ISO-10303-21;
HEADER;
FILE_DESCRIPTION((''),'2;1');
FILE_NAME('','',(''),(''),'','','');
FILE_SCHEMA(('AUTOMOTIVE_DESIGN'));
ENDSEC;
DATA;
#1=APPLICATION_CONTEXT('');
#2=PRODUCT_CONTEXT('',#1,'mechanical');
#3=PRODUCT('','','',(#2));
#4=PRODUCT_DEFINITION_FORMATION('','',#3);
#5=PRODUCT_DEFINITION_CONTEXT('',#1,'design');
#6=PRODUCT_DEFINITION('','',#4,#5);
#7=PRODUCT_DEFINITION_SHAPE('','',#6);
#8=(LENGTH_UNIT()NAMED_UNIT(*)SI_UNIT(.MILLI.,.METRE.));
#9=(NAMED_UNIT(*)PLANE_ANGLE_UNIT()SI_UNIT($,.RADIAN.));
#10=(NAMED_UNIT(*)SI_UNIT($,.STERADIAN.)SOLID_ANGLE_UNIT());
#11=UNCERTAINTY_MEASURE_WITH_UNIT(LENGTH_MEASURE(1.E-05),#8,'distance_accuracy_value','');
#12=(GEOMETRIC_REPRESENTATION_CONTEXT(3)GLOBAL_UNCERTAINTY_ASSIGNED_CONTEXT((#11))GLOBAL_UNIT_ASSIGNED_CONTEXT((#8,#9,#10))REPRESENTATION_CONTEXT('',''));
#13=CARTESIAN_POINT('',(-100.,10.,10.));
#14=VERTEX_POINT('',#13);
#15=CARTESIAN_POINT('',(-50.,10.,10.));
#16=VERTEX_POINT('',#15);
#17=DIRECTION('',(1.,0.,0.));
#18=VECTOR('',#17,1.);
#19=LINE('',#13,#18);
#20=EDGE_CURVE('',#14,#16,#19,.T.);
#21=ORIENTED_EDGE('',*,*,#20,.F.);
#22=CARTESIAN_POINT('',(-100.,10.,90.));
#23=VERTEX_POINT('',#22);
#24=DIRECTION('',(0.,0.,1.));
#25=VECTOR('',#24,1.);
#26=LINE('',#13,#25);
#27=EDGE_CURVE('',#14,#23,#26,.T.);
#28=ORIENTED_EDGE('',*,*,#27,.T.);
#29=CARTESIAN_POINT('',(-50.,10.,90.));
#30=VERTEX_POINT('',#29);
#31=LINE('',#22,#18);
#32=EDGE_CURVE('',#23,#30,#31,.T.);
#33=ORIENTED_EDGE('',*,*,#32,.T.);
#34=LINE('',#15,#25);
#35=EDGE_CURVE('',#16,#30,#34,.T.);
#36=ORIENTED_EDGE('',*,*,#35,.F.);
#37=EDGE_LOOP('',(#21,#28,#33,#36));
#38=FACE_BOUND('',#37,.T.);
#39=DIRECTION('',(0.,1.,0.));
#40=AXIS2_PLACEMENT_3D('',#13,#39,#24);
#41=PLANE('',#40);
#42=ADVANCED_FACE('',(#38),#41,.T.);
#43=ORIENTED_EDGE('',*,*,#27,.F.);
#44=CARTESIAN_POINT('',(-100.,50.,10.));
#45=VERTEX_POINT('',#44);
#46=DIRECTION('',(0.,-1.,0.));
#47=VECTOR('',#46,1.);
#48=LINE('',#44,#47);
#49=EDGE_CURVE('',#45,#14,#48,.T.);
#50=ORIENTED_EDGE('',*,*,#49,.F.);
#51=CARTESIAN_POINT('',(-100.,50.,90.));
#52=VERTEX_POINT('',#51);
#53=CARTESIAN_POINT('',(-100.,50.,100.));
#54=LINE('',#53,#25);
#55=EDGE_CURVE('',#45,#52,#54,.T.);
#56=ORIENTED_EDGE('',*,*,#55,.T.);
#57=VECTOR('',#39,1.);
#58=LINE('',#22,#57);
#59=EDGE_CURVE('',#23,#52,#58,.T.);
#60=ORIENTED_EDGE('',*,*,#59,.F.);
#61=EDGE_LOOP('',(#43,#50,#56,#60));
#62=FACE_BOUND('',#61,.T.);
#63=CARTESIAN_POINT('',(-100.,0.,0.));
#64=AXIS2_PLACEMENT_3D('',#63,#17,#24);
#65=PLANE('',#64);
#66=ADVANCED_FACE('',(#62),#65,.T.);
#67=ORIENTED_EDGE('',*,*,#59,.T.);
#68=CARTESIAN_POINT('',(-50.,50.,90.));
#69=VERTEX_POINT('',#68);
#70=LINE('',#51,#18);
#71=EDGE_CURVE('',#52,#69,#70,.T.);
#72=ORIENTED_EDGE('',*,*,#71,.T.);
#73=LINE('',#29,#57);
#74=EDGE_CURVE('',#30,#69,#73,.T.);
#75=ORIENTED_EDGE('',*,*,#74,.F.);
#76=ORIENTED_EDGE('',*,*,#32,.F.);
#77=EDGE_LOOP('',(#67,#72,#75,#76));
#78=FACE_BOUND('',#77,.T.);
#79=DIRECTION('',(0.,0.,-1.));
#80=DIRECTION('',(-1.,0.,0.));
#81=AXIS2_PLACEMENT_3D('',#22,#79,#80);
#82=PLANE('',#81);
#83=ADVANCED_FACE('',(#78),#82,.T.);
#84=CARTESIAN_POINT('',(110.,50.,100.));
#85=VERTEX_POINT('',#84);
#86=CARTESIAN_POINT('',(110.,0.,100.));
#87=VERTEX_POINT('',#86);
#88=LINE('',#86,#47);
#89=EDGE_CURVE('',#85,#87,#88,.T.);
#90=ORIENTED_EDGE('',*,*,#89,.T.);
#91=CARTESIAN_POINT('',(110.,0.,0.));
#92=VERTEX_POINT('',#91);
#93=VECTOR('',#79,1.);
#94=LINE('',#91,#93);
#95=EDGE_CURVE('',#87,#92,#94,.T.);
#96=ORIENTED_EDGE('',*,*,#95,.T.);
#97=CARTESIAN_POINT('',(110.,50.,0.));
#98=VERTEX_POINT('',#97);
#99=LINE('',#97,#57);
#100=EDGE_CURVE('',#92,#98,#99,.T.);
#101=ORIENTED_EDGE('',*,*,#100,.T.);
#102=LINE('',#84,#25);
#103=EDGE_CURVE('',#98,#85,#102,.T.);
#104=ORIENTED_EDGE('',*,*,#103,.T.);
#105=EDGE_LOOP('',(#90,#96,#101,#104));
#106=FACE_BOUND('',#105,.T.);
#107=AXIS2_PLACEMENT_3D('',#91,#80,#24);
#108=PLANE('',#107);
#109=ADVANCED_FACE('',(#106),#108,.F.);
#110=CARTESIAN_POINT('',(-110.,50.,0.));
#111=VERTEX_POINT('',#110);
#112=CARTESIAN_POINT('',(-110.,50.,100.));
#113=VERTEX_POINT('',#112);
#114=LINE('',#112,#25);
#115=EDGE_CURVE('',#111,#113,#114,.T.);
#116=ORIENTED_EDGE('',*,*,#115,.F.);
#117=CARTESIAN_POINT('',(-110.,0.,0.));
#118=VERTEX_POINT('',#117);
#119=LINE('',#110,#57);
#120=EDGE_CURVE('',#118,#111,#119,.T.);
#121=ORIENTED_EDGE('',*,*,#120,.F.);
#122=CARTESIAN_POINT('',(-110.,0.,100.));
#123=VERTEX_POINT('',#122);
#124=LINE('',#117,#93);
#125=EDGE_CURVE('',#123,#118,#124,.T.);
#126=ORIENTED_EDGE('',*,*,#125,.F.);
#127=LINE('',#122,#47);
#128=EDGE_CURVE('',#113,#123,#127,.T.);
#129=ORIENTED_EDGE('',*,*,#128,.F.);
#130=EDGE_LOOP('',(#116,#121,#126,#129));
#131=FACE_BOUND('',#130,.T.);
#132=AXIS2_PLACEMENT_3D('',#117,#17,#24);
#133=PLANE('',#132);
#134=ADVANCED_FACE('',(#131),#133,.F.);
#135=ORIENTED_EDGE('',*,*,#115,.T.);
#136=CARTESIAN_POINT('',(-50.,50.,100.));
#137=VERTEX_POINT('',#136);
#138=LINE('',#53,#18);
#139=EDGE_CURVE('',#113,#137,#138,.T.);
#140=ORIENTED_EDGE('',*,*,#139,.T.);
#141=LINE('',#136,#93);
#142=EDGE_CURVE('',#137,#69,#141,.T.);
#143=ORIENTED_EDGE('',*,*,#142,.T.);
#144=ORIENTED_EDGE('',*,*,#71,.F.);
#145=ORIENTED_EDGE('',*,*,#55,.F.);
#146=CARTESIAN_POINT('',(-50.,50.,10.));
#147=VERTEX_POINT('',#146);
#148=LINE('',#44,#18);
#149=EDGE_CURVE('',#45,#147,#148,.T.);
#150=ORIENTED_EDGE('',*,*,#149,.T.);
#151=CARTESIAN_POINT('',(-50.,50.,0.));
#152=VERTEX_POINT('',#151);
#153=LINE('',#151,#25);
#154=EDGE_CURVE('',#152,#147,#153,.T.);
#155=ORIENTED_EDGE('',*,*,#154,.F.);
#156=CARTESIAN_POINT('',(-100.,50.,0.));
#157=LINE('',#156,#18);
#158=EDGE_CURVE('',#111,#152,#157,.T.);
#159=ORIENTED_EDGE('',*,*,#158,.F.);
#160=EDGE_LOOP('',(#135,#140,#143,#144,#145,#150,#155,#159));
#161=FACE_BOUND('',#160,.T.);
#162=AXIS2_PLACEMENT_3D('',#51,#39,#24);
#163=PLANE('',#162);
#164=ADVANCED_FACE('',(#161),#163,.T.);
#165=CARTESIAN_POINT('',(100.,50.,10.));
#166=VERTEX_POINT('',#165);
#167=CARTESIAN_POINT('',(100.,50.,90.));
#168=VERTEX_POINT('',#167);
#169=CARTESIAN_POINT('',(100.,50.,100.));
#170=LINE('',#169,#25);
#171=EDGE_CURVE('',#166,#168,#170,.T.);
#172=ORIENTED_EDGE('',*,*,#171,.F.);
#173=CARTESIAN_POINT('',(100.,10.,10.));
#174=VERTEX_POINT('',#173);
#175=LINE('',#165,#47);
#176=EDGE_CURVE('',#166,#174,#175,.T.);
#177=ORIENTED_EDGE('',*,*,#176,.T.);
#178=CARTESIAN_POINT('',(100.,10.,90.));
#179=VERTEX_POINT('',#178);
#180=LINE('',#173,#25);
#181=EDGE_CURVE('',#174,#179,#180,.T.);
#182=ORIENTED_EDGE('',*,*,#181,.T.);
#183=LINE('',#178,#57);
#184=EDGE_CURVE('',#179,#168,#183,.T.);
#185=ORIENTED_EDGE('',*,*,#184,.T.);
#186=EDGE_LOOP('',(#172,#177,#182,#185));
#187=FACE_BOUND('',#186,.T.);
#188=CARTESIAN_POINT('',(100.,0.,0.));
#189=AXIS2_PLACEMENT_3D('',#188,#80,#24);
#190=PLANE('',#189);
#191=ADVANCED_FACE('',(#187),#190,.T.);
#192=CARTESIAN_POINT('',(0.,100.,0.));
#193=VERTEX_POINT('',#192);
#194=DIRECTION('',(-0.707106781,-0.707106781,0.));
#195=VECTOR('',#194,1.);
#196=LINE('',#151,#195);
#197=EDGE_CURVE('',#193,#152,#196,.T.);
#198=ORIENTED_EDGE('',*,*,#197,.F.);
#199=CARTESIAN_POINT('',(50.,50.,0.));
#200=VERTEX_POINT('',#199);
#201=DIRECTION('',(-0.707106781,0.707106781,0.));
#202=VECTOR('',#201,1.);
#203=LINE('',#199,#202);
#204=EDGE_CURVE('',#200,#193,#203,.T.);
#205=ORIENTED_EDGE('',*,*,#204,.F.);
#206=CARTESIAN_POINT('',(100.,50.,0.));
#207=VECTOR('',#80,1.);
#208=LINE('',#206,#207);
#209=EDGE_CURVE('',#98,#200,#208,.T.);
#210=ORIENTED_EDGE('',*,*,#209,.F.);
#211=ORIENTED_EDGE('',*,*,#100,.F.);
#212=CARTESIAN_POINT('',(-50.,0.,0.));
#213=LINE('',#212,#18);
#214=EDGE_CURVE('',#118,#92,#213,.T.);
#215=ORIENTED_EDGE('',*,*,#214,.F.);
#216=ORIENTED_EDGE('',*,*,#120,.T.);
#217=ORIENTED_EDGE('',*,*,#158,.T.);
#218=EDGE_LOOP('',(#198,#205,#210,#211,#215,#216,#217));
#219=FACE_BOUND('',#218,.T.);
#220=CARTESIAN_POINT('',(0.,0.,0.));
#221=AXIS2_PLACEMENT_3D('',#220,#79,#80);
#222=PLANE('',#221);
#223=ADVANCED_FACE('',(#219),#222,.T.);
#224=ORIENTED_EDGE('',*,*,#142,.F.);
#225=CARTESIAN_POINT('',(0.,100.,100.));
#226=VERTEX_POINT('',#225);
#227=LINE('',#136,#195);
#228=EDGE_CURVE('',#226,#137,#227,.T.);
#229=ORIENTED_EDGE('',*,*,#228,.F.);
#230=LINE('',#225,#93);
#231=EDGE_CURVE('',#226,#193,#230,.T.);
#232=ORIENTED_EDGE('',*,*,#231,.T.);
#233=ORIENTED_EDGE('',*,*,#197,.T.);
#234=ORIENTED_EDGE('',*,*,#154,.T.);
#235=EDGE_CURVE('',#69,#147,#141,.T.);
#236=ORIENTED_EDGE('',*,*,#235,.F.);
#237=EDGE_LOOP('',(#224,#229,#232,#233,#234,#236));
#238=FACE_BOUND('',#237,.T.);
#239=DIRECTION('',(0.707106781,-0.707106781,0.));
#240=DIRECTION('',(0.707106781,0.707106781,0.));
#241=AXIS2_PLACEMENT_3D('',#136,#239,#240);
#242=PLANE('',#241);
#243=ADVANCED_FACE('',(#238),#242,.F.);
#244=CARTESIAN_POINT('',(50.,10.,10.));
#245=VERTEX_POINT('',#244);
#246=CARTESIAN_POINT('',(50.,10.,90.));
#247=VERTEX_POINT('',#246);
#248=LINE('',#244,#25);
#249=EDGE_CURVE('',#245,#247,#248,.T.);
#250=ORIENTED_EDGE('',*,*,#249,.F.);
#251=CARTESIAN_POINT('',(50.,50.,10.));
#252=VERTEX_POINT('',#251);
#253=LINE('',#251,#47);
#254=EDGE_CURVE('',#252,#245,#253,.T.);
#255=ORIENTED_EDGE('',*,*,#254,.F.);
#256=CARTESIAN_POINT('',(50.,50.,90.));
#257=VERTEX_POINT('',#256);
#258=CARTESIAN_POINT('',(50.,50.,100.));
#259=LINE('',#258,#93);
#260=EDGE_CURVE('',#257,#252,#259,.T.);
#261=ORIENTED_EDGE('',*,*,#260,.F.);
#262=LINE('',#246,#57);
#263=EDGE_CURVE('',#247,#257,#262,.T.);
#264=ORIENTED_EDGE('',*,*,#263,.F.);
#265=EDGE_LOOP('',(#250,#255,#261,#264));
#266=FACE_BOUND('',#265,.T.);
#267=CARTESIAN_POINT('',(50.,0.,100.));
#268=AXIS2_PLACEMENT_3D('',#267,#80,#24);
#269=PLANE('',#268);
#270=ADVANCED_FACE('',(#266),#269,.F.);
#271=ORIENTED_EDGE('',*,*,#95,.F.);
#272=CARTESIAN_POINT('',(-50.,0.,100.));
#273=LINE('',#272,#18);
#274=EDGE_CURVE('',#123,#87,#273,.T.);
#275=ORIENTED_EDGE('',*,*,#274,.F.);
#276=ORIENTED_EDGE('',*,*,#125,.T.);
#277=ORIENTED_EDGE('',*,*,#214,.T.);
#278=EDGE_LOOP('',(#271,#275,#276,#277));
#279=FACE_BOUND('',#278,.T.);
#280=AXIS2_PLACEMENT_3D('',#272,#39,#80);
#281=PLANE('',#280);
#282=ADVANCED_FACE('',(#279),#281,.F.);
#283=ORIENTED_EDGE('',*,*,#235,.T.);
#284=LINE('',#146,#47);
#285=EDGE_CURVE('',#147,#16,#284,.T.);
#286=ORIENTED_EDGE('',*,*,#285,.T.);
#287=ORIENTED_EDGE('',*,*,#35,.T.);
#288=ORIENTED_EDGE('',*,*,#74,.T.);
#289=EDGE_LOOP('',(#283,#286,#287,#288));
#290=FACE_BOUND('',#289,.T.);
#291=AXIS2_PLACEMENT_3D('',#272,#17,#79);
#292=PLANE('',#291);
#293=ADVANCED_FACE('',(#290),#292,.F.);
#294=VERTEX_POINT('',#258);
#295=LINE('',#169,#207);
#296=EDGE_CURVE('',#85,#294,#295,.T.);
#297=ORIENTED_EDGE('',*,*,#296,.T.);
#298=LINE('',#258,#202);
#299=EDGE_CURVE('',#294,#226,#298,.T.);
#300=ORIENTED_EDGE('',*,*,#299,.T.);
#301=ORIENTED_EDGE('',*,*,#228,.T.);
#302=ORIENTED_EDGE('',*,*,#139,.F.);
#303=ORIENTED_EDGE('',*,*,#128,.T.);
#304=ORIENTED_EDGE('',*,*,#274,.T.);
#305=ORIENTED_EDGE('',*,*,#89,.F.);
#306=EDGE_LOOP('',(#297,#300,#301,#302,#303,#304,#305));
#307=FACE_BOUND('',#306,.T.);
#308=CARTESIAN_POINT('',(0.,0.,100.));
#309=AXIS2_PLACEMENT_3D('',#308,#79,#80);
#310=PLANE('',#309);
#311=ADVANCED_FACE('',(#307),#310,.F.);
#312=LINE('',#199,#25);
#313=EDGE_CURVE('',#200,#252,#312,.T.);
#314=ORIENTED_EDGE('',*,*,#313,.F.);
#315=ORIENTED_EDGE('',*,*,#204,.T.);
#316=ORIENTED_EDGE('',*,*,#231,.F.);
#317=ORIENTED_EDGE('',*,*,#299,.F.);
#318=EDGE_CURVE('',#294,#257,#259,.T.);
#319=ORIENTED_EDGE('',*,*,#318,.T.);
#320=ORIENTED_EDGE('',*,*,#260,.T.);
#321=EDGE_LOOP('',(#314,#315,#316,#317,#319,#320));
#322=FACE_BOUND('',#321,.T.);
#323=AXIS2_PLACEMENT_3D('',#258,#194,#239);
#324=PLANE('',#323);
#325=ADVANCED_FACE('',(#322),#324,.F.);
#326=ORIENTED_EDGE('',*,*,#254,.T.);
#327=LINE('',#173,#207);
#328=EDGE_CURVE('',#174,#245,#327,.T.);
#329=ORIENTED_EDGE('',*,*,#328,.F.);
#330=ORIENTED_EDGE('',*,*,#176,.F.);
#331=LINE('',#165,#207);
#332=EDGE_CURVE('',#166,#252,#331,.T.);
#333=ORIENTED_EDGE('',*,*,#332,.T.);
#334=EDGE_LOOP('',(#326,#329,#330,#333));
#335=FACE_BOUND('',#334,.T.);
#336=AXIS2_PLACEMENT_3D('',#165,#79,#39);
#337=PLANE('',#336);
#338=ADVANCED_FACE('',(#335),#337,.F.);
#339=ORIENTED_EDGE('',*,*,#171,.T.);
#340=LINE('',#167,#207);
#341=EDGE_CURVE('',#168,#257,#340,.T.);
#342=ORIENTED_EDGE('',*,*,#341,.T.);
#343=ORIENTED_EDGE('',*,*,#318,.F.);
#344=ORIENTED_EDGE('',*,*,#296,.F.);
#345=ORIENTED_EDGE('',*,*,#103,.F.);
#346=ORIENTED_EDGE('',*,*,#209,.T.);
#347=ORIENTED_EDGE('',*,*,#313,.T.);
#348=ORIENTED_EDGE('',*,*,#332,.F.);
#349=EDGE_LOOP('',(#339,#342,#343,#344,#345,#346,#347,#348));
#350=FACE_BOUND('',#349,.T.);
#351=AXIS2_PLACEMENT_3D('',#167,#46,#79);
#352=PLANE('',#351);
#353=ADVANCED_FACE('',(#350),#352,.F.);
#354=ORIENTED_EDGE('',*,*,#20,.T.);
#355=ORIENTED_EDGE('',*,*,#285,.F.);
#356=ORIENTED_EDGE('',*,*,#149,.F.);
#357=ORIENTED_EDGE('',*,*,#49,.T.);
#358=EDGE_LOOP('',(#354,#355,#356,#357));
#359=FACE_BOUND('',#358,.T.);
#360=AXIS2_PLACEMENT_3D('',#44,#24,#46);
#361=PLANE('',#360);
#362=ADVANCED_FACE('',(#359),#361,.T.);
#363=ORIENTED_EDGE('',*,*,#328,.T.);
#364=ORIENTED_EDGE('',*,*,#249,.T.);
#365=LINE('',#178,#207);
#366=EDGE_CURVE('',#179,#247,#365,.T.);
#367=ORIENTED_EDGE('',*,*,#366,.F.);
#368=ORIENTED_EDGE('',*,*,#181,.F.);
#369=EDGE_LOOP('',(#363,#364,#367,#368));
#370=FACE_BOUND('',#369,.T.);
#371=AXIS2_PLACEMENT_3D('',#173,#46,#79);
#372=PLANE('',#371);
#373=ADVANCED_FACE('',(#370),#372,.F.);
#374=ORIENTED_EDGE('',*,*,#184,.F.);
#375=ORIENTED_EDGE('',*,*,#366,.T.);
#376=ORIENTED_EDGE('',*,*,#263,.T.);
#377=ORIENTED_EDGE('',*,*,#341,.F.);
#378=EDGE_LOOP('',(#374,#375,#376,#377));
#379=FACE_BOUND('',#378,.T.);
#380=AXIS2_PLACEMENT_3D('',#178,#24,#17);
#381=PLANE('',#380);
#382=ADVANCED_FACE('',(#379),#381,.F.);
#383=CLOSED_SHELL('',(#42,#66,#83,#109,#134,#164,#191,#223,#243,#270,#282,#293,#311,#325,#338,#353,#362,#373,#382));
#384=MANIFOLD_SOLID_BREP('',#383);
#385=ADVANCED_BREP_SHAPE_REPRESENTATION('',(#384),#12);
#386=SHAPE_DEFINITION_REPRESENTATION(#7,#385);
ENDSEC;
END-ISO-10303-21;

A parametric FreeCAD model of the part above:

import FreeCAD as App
import Part
import Sketcher
Q = App.Units.Quantity

doc = App.newDocument("Part")
params = doc.addObject("Spreadsheet::Sheet", "Params")
for row, (alias, value) in enumerate([
    ("sketch1_width", "100 mm"),
    ("sketch1_height", "50 mm"),
    ("pad1_length", "100 mm"),
    ("sketch2_width", "50 mm"),
    ("sketch2_width2", "40 mm"),
    ("sketch2_height", "100 mm"),
    ("sketch2_height2", "10 mm"),
    ("pad2_length", "50 mm"),
    ("sketch3_width", "50 mm"),
    ("sketch3_height", "100 mm"),
    ("pad3_length", "10 mm"),
], start=1):
    params.set(f"A{row}", alias)
    params.set(f"B{row}", "=" + value)
    params.setAlias(f"B{row}", alias)

body = doc.addObject("PartDesign::Body", "Body")

# Sketch on XY plane
sketch1 = body.newObject("Sketcher::SketchObject", "Sketch")
sketch1.AttachmentSupport = (doc.getObject("XY_Plane"), [""])
sketch1.MapMode = "FlatFace"
sketch1.addGeometry([
    Part.LineSegment(App.Vector(-50, 0, 0), App.Vector(50, 0, 0)),  # 0
    Part.LineSegment(App.Vector(50, 0, 0), App.Vector(50, 50, 0)),  # 1
    Part.LineSegment(App.Vector(50, 50, 0), App.Vector(0, 100, 0)),  # 2
    Part.LineSegment(App.Vector(0, 100, 0), App.Vector(-50, 50, 0)),  # 3
    Part.LineSegment(App.Vector(-50, 50, 0), App.Vector(-50, 0, 0)),  # 4
], False)
sketch1.addConstraint([
    Sketcher.Constraint("Coincident", 0, 2, 1, 1),
    Sketcher.Constraint("Coincident", 1, 2, 2, 1),
    Sketcher.Constraint("Coincident", 2, 2, 3, 1),
    Sketcher.Constraint("Coincident", 3, 2, 4, 1),
    Sketcher.Constraint("Coincident", 4, 2, 0, 1),
    Sketcher.Constraint("Horizontal", 0),
    Sketcher.Constraint("Vertical", 1),
    Sketcher.Constraint("Vertical", 4),
    Sketcher.Constraint("Symmetric", 0, 2, 4, 2, -1, 1),
    Sketcher.Constraint("PointOnObject", 2, 2, -2),
    Sketcher.Constraint("Perpendicular", 2, 3),
    Sketcher.Constraint("Horizontal", 1, 2, 3, 2),
    Sketcher.Constraint("DistanceX", 0, 1, 0, 2, Q("100 mm")),
    Sketcher.Constraint("DistanceY", 1, 1, 1, 2, Q("50 mm")),
])
sketch1.setExpression("Constraints[12]", "Params.sketch1_width")
sketch1.setExpression("Constraints[13]", "Params.sketch1_height")
pad1 = body.newObject("PartDesign::Pad", "Pad")
pad1.Profile = sketch1
pad1.setExpression("Length", "Params.pad1_length")

# Sketch on YZ plane
sketch2 = body.newObject("Sketcher::SketchObject", "Sketch001")
sketch2.AttachmentSupport = (doc.getObject("YZ_Plane"), [""])
sketch2.MapMode = "FlatFace"
sketch2.AttachmentOffset = App.Placement(App.Vector(0, 0, 50), App.Rotation())
sketch2.addGeometry([
    Part.LineSegment(App.Vector(50, 100, 0), App.Vector(0, 100, 0)),  # 0
    Part.LineSegment(App.Vector(0, 100, 0), App.Vector(0, 0, 0)),  # 1
    Part.LineSegment(App.Vector(0, 0, 0), App.Vector(50, 0, 0)),  # 2
    Part.LineSegment(App.Vector(50, 0, 0), App.Vector(50, 10, 0)),  # 3
    Part.LineSegment(App.Vector(50, 10, 0), App.Vector(10, 10, 0)),  # 4
    Part.LineSegment(App.Vector(10, 10, 0), App.Vector(10, 90, 0)),  # 5
    Part.LineSegment(App.Vector(10, 90, 0), App.Vector(50, 90, 0)),  # 6
    Part.LineSegment(App.Vector(50, 90, 0), App.Vector(50, 100, 0)),  # 7
], False)
sketch2.addConstraint([
    Sketcher.Constraint("Coincident", 0, 2, 1, 1),
    Sketcher.Constraint("Coincident", 1, 2, 2, 1),
    Sketcher.Constraint("Coincident", 2, 2, 3, 1),
    Sketcher.Constraint("Coincident", 3, 2, 4, 1),
    Sketcher.Constraint("Coincident", 4, 2, 5, 1),
    Sketcher.Constraint("Coincident", 5, 2, 6, 1),
    Sketcher.Constraint("Coincident", 6, 2, 7, 1),
    Sketcher.Constraint("Coincident", 7, 2, 0, 1),
    Sketcher.Constraint("Horizontal", 0),
    Sketcher.Constraint("Vertical", 1),
    Sketcher.Constraint("Horizontal", 2),
    Sketcher.Constraint("Vertical", 3),
    Sketcher.Constraint("Horizontal", 4),
    Sketcher.Constraint("Vertical", 5),
    Sketcher.Constraint("Horizontal", 6),
    Sketcher.Constraint("Vertical", 7),
    Sketcher.Constraint("Coincident", 1, 2, -1, 1),
    Sketcher.Constraint("Vertical", 3, 2, 6, 2),
    Sketcher.Constraint("Equal", 3, 7),
    Sketcher.Constraint("DistanceX", 0, 2, 0, 1, Q("50 mm")),
    Sketcher.Constraint("DistanceX", 4, 2, 4, 1, Q("40 mm")),
    Sketcher.Constraint("DistanceY", 1, 2, 1, 1, Q("100 mm")),
    Sketcher.Constraint("DistanceY", 3, 1, 3, 2, Q("10 mm")),
])
sketch2.setExpression("Constraints[19]", "Params.sketch2_width")
sketch2.setExpression("Constraints[20]", "Params.sketch2_width2")
sketch2.setExpression("Constraints[21]", "Params.sketch2_height")
sketch2.setExpression("Constraints[22]", "Params.sketch2_height2")
pad2 = body.newObject("PartDesign::Pad", "Pad001")
pad2.Profile = sketch2
pad2.setExpression("Length", "Params.pad2_length")

# Sketch on YZ plane
sketch3 = body.newObject("Sketcher::SketchObject", "Sketch002")
sketch3.AttachmentSupport = (doc.getObject("YZ_Plane"), [""])
sketch3.MapMode = "FlatFace"
sketch3.AttachmentOffset = App.Placement(App.Vector(0, 0, 100), App.Rotation())
sketch3.addGeometry([
    Part.LineSegment(App.Vector(50, 100, 0), App.Vector(0, 100, 0)),
    Part.LineSegment(App.Vector(0, 100, 0), App.Vector(0, 0, 0)),
    Part.LineSegment(App.Vector(0, 0, 0), App.Vector(50, 0, 0)),
    Part.LineSegment(App.Vector(50, 0, 0), App.Vector(50, 100, 0)),
], False)
sketch3.addConstraint([
    Sketcher.Constraint("Coincident", 0, 2, 1, 1),
    Sketcher.Constraint("Coincident", 1, 2, 2, 1),
    Sketcher.Constraint("Coincident", 2, 2, 3, 1),
    Sketcher.Constraint("Coincident", 3, 2, 0, 1),
    Sketcher.Constraint("Horizontal", 0),
    Sketcher.Constraint("Vertical", 1),
    Sketcher.Constraint("Horizontal", 2),
    Sketcher.Constraint("Vertical", 3),
    Sketcher.Constraint("Coincident", 1, 2, -1, 1),
    Sketcher.Constraint("DistanceX", 0, 2, 0, 1, Q("50 mm")),
    Sketcher.Constraint("DistanceY", 1, 2, 1, 1, Q("100 mm")),
])
sketch3.setExpression("Constraints[9]", "Params.sketch3_width")
sketch3.setExpression("Constraints[10]", "Params.sketch3_height")
pad3 = body.newObject("PartDesign::Pad", "Pad002")
pad3.Profile = sketch3
pad3.setExpression("Length", "Params.pad3_length")
doc.recompute()

mirrored = body.newObject("PartDesign::Mirrored", "Mirrored")
mirrored.Originals = [pad2, pad3]
mirrored.MirrorPlane = (doc.getObject("YZ_Plane"), [""])
body.Tip = mirrored

doc.recompute()
